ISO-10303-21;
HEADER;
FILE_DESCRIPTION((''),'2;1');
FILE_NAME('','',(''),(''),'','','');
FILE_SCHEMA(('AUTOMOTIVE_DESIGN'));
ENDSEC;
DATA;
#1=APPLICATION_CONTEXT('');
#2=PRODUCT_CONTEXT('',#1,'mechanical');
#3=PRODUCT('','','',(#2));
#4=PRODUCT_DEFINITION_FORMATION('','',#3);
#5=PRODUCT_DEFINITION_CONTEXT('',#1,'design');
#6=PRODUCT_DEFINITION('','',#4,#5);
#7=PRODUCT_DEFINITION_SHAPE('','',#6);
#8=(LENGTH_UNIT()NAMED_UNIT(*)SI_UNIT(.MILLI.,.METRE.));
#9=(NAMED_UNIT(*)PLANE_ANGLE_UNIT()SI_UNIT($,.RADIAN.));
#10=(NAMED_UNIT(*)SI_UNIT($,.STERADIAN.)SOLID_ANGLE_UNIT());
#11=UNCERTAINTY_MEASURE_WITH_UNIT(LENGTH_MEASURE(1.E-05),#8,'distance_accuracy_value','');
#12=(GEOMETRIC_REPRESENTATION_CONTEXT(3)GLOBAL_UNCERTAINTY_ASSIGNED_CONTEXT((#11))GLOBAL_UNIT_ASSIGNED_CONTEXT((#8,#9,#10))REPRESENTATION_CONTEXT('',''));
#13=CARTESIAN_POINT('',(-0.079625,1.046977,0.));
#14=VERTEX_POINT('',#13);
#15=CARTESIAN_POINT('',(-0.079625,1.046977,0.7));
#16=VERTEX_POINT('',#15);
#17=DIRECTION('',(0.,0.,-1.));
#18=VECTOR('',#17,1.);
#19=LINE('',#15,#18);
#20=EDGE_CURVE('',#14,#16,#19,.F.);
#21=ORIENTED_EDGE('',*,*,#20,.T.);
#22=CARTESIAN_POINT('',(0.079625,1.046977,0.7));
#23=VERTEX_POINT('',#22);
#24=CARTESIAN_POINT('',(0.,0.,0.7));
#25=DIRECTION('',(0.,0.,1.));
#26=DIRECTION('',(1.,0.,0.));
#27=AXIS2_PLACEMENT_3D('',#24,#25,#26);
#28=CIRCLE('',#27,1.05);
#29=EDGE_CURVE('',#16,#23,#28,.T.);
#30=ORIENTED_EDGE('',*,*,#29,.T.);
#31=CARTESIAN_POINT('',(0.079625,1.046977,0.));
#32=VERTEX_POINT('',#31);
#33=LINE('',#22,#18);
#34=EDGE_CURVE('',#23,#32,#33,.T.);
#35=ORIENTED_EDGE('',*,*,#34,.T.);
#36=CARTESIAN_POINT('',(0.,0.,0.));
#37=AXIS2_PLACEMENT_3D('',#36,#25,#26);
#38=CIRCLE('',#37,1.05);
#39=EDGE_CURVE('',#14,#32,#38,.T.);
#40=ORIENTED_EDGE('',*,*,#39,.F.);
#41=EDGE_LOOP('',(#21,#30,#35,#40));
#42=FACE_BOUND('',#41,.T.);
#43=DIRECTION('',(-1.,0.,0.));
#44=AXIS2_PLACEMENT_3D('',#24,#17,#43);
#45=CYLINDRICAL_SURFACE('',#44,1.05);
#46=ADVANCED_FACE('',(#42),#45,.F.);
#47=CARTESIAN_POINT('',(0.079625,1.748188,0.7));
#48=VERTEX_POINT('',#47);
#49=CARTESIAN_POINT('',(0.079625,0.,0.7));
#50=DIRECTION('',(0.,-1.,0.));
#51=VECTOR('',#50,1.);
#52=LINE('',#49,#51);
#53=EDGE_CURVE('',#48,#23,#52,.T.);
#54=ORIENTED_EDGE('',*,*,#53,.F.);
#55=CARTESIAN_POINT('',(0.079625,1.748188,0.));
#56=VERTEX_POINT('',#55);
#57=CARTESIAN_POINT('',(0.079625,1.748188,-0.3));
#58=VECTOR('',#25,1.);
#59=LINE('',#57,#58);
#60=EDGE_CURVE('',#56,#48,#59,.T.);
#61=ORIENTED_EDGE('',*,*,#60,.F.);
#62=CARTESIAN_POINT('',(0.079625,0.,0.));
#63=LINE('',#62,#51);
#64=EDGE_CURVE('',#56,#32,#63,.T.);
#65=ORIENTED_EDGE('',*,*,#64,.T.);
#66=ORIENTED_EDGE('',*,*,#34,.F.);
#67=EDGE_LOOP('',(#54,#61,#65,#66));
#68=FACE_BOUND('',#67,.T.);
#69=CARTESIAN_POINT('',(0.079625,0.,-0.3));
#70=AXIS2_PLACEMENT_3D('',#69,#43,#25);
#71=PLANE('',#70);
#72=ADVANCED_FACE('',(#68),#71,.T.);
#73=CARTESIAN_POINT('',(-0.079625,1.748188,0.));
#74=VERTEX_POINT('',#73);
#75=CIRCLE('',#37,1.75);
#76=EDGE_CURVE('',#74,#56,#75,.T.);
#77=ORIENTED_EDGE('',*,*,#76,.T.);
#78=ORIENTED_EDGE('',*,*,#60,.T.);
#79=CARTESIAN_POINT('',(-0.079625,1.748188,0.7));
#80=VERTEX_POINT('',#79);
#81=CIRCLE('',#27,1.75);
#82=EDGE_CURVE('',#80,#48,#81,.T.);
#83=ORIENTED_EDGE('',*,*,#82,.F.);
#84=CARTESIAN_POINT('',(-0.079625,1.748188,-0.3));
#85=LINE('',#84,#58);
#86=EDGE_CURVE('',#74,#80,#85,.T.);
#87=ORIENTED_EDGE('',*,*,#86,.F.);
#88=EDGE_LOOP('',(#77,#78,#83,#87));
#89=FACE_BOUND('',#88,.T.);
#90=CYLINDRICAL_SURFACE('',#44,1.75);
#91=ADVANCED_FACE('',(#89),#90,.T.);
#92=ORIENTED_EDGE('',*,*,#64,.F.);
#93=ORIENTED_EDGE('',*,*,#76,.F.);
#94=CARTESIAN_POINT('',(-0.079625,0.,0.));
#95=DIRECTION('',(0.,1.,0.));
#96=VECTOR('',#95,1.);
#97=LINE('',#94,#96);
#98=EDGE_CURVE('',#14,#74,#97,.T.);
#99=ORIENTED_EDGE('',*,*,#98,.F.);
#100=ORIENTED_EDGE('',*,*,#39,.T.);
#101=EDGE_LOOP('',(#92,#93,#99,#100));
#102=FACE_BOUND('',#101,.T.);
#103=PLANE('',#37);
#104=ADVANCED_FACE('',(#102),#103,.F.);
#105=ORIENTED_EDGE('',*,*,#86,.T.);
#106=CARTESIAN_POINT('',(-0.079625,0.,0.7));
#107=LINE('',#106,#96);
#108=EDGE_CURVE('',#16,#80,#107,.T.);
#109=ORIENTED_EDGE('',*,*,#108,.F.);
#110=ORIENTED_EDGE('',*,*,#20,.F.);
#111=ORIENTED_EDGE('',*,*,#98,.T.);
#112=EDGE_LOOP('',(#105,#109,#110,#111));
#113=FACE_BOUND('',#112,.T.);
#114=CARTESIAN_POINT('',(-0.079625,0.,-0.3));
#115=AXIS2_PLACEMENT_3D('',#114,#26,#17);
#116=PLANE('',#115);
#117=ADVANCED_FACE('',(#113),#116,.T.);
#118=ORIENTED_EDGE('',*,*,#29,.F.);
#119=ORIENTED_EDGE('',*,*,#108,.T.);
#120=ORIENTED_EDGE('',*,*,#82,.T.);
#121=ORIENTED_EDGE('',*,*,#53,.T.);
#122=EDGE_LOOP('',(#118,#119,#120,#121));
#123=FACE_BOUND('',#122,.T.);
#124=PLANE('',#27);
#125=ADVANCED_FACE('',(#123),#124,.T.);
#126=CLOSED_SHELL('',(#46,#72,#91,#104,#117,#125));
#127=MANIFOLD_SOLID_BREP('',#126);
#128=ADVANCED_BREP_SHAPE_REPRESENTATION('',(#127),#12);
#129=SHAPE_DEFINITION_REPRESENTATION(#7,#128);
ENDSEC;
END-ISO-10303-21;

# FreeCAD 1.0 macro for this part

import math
import FreeCAD as App
import Part
import Sketcher

V = App.Vector

doc = App.newDocument("Part")
params = doc.addObject("Spreadsheet::Sheet", "Params")
for row, (alias, value) in enumerate([
    ("sketch1_diameter", "3.5 mm"),
    ("sketch1_diameter2", "2.1 mm"),
    ("pad1_length", "0.7 mm"),
    ("sketch2_radius", "1.05 mm"),
    ("sketch2_radius2", "1.75 mm"),
    ("pocket1_length", "1 mm"),
], start=1):
    params.set(f"A{row}", alias)
    params.set(f"B{row}", "=" + value)
    params.setAlias(f"B{row}", alias)

body = doc.addObject("PartDesign::Body", "Body")

# Sketch on XY plane
sketch1 = body.newObject("Sketcher::SketchObject", "Sketch")
sketch1.AttachmentSupport = (doc.getObject("XY_Plane"), [""])
sketch1.MapMode = "FlatFace"
sketch1.addGeometry([
    Part.Circle(V(0, 0, 0), V(0, 0, 1), 1.8),
    Part.Circle(V(0, 0, 0), V(0, 0, 1), 1.1),
], False)
sketch1.addConstraint([
    Sketcher.Constraint("Coincident", 0, 3, -1, 1),
    Sketcher.Constraint("Coincident", 1, 3, -1, 1),
    Sketcher.Constraint("Diameter", 0, 3.5),
    Sketcher.Constraint("Diameter", 1, 2.1),
])
sketch1.setExpression("Constraints[2]", "Params.sketch1_diameter")
sketch1.setExpression("Constraints[3]", "Params.sketch1_diameter2")
pad1 = body.newObject("PartDesign::Pad", "Pad")
pad1.Profile = sketch1
pad1.setExpression("Length", "Params.pad1_length")

# Sketch on XY plane
sketch2 = body.newObject("Sketcher::SketchObject", "Sketch001")
sketch2.AttachmentSupport = (doc.getObject("XY_Plane"), [""])
sketch2.MapMode = "FlatFace"
sketch2.AttachmentOffset = App.Placement(V(0, 0, -0.3), App.Rotation())
sketch2.addGeometry([
    Part.LineSegment(V(-0.08, 1.75, 0), V(-0.08, 1.05, 0)),
    Part.ArcOfCircle(Part.Circle(V(0, 0, 0), V(0, 0, 1), 1.05), math.radians(85.65), math.radians(94.35)),
    Part.LineSegment(V(0.08, 1.05, 0), V(0.08, 1.75, 0)),
    Part.ArcOfCircle(Part.Circle(V(0, 0, 0), V(0, 0, 1), 1.75), math.radians(87.39), math.radians(92.61)),
], False)
sketch2.addConstraint([
    Sketcher.Constraint("Coincident", 0, 2, 1, 2),
    Sketcher.Constraint("Coincident", 1, 1, 2, 1),
    Sketcher.Constraint("Coincident", 2, 2, 3, 1),
    Sketcher.Constraint("Coincident", 3, 2, 0, 1),
    Sketcher.Constraint("Vertical", 0),
    Sketcher.Constraint("Vertical", 2),
    Sketcher.Constraint("Coincident", 1, 3, -1, 1),
    Sketcher.Constraint("Coincident", 3, 3, -1, 1),
    Sketcher.Constraint("Horizontal", 0, 2, 1, 1),
    Sketcher.Constraint("Radius", 1, 1.05),
    Sketcher.Constraint("Radius", 3, 1.75),
    Sketcher.Constraint("DistanceY", 0, 2, 0, 1, 0.701211),
])
sketch2.setExpression("Constraints[9]", "Params.sketch2_radius")
sketch2.setExpression("Constraints[10]", "Params.sketch2_radius2")
pocket1 = body.newObject("PartDesign::Pocket", "Pocket")
pocket1.Profile = sketch2
pocket1.setExpression("Length", "Params.pocket1_length")
pocket1.Reversed = True

doc.recompute()
